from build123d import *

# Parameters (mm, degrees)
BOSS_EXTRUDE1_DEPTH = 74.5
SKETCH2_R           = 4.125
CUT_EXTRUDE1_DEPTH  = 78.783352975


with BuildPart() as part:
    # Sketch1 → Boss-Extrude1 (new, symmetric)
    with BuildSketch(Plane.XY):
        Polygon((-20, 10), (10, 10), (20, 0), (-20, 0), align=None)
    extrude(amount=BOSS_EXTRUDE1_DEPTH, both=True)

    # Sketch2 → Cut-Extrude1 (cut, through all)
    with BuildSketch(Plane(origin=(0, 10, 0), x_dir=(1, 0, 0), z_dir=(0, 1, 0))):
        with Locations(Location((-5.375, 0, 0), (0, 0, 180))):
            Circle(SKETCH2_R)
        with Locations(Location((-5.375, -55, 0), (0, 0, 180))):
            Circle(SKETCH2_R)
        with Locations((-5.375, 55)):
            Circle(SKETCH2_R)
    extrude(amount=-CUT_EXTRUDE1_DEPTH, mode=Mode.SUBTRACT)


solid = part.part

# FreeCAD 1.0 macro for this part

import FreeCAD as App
import Part
import Sketcher

V = App.Vector
Q = App.Units.Quantity

doc = App.newDocument("Part")
body = doc.addObject("PartDesign::Body", "Body")

# Sketch on XY plane
sketch1 = body.newObject("Sketcher::SketchObject", "Sketch")
sketch1.AttachmentSupport = (doc.getObject("XY_Plane"), [""])
sketch1.MapMode = "FlatFace"
sketch1.addGeometry([
    Part.LineSegment(V(10, 10, 0), V(-20, 10, 0)),
    Part.LineSegment(V(-20, 10, 0), V(-20, 0, 0)),
    Part.LineSegment(V(-20, 0, 0), V(20, 0, 0)),
    Part.LineSegment(V(20, 0, 0), V(10, 10, 0)),
], False)
sketch1.addConstraint([
    Sketcher.Constraint("Coincident", 0, 2, 1, 1),
    Sketcher.Constraint("Coincident", 1, 2, 2, 1),
    Sketcher.Constraint("Coincident", 2, 2, 3, 1),
    Sketcher.Constraint("Coincident", 3, 2, 0, 1),
    Sketcher.Constraint("Horizontal", 0),
    Sketcher.Constraint("Vertical", 1),
    Sketcher.Constraint("Horizontal", 2),
    Sketcher.Constraint("Symmetric", 1, 2, 2, 2, -1, 1),
    Sketcher.Constraint("DistanceX", 0, 2, 0, 1, Q("30 mm")),
    Sketcher.Constraint("DistanceX", 2, 1, 2, 2, Q("40 mm")),
    Sketcher.Constraint("DistanceY", 1, 2, 1, 1, Q("10 mm")),
])
pad1 = body.newObject("PartDesign::Pad", "Pad")
pad1.Profile = sketch1
pad1.Length = 149
pad1.Midplane = True

# Sketch on XZ plane
sketch2 = body.newObject("Sketcher::SketchObject", "Sketch001")
sketch2.AttachmentSupport = (doc.getObject("XZ_Plane"), [""])
sketch2.MapMode = "FlatFace"
sketch2.AttachmentOffset = App.Placement(V(0, 0, -10), App.Rotation())
sketch2.addGeometry([
    Part.Circle(V(-5.4, 0, 0), V(0, 0, 1), 4.1),
    Part.Circle(V(-5.4, 55, 0), V(0, 0, 1), 4.1),
    Part.Circle(V(-5.4, -55, 0), V(0, 0, 1), 4.1),
], False)
sketch2.addConstraint([
    Sketcher.Constraint("Equal", 0, 1),
    Sketcher.Constraint("Equal", 1, 2),
    Sketcher.Constraint("Symmetric", 1, 3, 2, 3, -1),
    Sketcher.Constraint("PointOnObject", 0, 3, -1),
    Sketcher.Constraint("Vertical", 0, 3, 1, 3),
    Sketcher.Constraint("Diameter", 0, Q("8.25 mm")),
    Sketcher.Constraint("DistanceY", -1, 1, 1, 3, Q("55 mm")),
    Sketcher.Constraint("DistanceX", 0, 3, -1, 1, Q("5.375 mm")),
])
pocket1 = body.newObject("PartDesign::Pocket", "Pocket")
pocket1.Profile = sketch2
pocket1.Type = "ThroughAll"
pocket1.Reversed = True

doc.recompute()
